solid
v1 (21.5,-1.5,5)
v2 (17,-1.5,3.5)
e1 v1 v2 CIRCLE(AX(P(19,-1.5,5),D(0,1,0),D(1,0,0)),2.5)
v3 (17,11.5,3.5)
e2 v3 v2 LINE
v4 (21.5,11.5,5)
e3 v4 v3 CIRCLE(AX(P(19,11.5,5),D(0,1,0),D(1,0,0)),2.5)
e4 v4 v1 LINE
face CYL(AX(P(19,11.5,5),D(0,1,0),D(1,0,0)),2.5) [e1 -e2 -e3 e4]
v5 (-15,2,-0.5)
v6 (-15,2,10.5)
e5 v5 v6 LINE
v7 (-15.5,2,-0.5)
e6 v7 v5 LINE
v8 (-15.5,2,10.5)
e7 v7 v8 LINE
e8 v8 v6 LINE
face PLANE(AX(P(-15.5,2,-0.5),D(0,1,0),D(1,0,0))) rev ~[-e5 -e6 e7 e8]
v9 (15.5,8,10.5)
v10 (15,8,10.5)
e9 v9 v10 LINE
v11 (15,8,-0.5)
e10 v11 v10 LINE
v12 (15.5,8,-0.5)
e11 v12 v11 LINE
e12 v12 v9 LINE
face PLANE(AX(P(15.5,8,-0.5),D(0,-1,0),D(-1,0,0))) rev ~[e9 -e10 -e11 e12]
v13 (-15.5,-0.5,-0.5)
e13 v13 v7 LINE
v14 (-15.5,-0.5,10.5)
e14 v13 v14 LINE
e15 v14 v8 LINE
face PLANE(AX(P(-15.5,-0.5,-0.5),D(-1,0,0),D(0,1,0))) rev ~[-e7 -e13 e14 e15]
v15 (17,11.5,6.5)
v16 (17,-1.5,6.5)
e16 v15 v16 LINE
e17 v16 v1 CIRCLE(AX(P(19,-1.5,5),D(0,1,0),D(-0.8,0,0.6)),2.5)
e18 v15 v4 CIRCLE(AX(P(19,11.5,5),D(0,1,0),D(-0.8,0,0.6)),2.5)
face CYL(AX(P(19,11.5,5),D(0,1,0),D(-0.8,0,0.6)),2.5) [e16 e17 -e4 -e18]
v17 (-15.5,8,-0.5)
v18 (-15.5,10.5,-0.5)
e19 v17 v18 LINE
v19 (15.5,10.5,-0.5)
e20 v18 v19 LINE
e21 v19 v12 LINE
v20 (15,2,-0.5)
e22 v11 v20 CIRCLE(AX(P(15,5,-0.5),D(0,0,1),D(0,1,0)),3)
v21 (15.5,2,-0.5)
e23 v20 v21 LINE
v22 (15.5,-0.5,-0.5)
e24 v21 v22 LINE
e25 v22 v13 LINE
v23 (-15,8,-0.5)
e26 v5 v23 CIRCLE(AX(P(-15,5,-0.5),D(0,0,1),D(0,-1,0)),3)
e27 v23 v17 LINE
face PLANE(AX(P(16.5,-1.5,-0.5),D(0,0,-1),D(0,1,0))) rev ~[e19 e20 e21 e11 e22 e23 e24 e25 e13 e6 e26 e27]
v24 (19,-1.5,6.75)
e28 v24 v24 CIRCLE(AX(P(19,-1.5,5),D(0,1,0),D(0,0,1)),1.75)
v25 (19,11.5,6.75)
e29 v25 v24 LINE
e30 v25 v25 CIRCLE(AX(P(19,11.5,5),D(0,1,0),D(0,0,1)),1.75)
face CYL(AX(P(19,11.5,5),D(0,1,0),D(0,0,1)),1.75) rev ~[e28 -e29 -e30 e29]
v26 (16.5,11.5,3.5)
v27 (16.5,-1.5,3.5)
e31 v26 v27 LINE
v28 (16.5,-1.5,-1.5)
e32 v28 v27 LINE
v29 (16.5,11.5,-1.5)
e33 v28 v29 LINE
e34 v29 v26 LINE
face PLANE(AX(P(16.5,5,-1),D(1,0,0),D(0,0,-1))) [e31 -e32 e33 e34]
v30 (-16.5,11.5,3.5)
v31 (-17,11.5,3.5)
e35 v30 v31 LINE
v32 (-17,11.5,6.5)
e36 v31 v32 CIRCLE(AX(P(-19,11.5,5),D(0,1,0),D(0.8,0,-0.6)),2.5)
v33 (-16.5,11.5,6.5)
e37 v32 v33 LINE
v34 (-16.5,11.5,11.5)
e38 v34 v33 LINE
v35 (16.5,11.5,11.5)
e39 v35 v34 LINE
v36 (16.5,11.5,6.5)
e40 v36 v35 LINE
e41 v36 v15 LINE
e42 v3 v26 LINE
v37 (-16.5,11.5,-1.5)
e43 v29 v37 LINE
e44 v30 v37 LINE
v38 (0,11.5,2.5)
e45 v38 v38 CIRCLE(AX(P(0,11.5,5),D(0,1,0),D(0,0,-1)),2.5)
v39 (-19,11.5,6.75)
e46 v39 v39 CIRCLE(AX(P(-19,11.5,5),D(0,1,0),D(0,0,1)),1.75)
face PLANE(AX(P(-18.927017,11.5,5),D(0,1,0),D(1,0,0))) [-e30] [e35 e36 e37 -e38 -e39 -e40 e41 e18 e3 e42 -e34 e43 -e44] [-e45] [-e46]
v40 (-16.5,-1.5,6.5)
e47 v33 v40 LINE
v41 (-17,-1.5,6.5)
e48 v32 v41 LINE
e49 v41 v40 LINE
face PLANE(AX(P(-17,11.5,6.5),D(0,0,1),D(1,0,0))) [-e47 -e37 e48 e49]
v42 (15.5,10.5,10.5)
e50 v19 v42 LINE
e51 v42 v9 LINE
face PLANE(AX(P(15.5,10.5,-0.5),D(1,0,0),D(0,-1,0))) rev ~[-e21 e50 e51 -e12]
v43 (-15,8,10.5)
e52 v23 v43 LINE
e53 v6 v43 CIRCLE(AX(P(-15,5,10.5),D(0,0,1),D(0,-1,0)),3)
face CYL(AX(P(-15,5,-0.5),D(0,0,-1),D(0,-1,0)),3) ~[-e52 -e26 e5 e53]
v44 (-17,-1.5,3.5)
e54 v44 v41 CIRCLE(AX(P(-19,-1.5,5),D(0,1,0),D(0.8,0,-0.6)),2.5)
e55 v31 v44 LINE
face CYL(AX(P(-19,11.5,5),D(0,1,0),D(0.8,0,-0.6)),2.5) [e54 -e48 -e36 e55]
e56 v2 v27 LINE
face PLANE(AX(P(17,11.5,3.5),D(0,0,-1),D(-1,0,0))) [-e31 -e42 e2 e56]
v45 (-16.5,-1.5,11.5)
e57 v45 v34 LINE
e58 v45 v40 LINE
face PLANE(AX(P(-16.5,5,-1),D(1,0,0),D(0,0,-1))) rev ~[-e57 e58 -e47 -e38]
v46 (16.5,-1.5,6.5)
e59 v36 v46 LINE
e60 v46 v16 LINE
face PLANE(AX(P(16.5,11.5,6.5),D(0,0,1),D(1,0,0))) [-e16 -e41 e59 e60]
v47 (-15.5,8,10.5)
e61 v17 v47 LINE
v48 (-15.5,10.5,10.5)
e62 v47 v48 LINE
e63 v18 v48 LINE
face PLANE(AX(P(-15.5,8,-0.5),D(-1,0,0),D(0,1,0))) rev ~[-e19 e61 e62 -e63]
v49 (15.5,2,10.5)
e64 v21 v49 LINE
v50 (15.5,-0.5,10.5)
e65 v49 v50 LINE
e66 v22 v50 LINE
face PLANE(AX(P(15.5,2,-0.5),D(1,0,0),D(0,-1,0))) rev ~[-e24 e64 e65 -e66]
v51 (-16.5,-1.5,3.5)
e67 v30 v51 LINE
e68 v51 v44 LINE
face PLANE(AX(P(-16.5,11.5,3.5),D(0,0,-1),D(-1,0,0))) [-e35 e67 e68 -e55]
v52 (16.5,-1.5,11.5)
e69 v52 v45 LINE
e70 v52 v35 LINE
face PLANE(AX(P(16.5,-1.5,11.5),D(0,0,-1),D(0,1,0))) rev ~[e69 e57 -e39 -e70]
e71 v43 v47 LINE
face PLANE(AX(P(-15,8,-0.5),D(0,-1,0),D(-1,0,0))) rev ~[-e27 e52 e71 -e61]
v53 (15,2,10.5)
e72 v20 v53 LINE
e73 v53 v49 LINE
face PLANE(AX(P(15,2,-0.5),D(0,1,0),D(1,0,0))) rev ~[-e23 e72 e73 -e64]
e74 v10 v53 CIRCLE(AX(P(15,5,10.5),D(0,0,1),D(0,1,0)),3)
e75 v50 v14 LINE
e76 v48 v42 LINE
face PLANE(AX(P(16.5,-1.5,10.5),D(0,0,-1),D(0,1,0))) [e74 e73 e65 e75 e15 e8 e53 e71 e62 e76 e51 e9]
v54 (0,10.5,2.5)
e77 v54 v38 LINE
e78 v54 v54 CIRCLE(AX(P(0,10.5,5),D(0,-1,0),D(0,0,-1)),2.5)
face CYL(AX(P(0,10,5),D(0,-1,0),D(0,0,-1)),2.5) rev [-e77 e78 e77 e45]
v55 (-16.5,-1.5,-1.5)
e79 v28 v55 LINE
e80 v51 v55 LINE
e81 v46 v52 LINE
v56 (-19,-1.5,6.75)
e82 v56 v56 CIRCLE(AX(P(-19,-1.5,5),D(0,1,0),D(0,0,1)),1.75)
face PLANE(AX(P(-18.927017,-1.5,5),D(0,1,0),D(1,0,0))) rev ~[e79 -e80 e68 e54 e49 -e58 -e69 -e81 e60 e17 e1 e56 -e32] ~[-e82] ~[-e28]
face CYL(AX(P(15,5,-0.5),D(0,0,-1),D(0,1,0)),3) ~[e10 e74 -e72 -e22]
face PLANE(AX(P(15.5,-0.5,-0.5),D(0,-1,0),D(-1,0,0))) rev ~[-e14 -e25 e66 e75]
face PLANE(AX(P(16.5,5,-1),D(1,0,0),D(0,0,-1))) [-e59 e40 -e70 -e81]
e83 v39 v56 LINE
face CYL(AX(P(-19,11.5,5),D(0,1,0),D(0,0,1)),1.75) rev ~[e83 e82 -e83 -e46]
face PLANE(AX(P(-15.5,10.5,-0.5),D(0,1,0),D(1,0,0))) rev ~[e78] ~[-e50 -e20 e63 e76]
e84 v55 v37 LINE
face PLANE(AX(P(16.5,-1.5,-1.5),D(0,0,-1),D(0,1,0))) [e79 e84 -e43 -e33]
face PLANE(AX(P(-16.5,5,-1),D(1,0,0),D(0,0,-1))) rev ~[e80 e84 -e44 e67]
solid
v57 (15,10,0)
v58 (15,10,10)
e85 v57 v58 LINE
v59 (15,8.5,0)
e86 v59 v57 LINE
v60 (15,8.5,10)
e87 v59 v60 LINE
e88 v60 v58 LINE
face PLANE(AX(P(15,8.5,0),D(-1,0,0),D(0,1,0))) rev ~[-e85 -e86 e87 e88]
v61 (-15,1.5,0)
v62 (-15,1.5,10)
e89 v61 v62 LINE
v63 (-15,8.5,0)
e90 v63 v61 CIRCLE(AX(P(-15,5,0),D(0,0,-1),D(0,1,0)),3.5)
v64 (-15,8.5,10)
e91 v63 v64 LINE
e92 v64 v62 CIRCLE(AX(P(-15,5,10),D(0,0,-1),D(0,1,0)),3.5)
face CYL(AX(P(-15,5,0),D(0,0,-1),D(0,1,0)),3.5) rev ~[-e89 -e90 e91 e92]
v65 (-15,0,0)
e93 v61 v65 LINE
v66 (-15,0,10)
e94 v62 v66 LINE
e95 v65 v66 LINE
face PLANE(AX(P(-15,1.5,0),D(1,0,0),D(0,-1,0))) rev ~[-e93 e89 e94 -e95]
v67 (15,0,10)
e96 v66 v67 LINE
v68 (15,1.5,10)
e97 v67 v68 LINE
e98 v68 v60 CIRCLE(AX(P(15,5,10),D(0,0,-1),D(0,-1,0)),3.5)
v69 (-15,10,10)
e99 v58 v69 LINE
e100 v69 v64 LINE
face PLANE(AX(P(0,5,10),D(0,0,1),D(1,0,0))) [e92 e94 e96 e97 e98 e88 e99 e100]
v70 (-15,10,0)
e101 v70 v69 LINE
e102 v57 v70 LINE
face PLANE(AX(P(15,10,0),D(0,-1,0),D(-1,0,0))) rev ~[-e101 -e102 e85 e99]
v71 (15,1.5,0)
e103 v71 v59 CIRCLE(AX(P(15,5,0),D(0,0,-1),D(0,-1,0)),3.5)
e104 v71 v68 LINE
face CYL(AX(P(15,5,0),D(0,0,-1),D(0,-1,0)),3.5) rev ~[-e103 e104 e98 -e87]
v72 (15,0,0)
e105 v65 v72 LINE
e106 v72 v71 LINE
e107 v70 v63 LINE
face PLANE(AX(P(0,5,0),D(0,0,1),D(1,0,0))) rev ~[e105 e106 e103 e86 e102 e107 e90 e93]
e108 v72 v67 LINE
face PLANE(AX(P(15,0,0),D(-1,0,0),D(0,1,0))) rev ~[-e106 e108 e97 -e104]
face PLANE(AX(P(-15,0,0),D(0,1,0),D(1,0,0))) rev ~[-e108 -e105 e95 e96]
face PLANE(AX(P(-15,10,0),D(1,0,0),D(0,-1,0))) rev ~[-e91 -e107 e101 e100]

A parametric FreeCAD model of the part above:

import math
import FreeCAD as App
import Part
import Sketcher

V = App.Vector


def add_polygon(sketch, points):
    """Adds a closed chain of lines whose ends are joined by coincident constraints."""
    first, n = sketch.GeometryCount, len(points)
    for a, b in zip(points, points[1:] + points[:1]):
        sketch.addGeometry(Part.LineSegment(App.Vector(*a, 0), App.Vector(*b, 0)), False)
    for i in range(n):
        sketch.addConstraint(Sketcher.Constraint("Coincident", first + i, 2, first + (i + 1) % n, 1))

doc = App.newDocument("Part")
params = doc.addObject("Spreadsheet::Sheet", "Params")
for row, (alias, value) in enumerate([
    ("sketch1_radius", "3.5 mm"),
    ("sketch1_width", "30 mm"),
    ("sketch1_height", "1.5 mm"),
    ("pad1_length", "10 mm"),
    ("sketch2_radius", "3 mm"),
    ("sketch2_width", "33 mm"),
    ("sketch2_width2", "31 mm"),
    ("sketch2_height", "13 mm"),
    ("sketch2_width3", "0.5 mm"),
    ("pad2_length", "11 mm"),
    ("sketch3_width", "13 mm"),
    ("sketch3_height", "1 mm"),
    ("pad3_length", "33 mm"),
    ("sketch4_diameter", "3.5 mm"),
    ("sketch4_radius", "2.5 mm"),
    ("sketch4_height", "3 mm"),
    ("sketch4_width", "0.5 mm"),
    ("pad4_length", "13 mm"),
    ("sketch5_diameter", "5 mm"),
    ("pocket1_length", "1.5 mm"),
], start=1):
    params.set(f"A{row}", alias)
    params.set(f"B{row}", "=" + value)
    params.setAlias(f"B{row}", alias)

body = doc.addObject("PartDesign::Body", "Body")

# Sketch on XY plane
sketch1 = doc.addObject("Sketcher::SketchObject", "Sketch")
body.addObject(sketch1)
sketch1.AttachmentSupport = (doc.XY_Plane, [""])
sketch1.MapMode = "FlatFace"
sketch1.addGeometry(Part.LineSegment(V(-15, 0, 0), V(15, 0, 0)), False)
sketch1.addGeometry(Part.LineSegment(V(15, 0, 0), V(15, 1.5, 0)), False)
sketch1.addGeometry(Part.ArcOfCircle(Part.Circle(V(15, 5, 0), V(0, 0, 1), 3.5), math.radians(90), math.radians(270)), False)
sketch1.addGeometry(Part.LineSegment(V(15, 8.5, 0), V(15, 10, 0)), False)
sketch1.addGeometry(Part.LineSegment(V(15, 10, 0), V(-15, 10, 0)), False)
sketch1.addGeometry(Part.LineSegment(V(-15, 10, 0), V(-15, 8.5, 0)), False)
sketch1.addGeometry(Part.ArcOfCircle(Part.Circle(V(-15, 5, 0), V(0, 0, 1), 3.5), math.radians(-90), math.radians(90)), False)
sketch1.addGeometry(Part.LineSegment(V(-15, 1.5, 0), V(-15, 0, 0)), False)
sketch1.addConstraint(Sketcher.Constraint("Coincident", 0, 2, 1, 1))
sketch1.addConstraint(Sketcher.Constraint("Coincident", 1, 2, 2, 2))
sketch1.addConstraint(Sketcher.Constraint("Coincident", 2, 1, 3, 1))
sketch1.addConstraint(Sketcher.Constraint("Coincident", 3, 2, 4, 1))
sketch1.addConstraint(Sketcher.Constraint("Coincident", 4, 2, 5, 1))
sketch1.addConstraint(Sketcher.Constraint("Coincident", 5, 2, 6, 2))
sketch1.addConstraint(Sketcher.Constraint("Coincident", 6, 1, 7, 1))
sketch1.addConstraint(Sketcher.Constraint("Coincident", 7, 2, 0, 1))
sketch1.addConstraint(Sketcher.Constraint("Horizontal", 0))
sketch1.addConstraint(Sketcher.Constraint("Vertical", 1))
sketch1.addConstraint(Sketcher.Constraint("Vertical", 3))
sketch1.addConstraint(Sketcher.Constraint("Horizontal", 4))
sketch1.addConstraint(Sketcher.Constraint("Vertical", 5))
sketch1.addConstraint(Sketcher.Constraint("Vertical", 7))
sketch1.addConstraint(Sketcher.Constraint("Equal", 2, 6))
sketch1.addConstraint(Sketcher.Constraint("Symmetric", 0, 2, 7, 2, -1, 1))
sketch1.addConstraint(Sketcher.Constraint("Symmetric", 2, 3, 6, 3, -2))
sketch1.addConstraint(Sketcher.Constraint("Vertical", 2, 3, 0, 2))
sketch1.addConstraint(Sketcher.Constraint("Vertical", 1, 2, 2, 1))
sketch1.addConstraint(Sketcher.Constraint("Vertical", 6, 3, 4, 2))
sketch1.addConstraint(Sketcher.Constraint("Equal", 1, 3))
sketch1.addConstraint(Sketcher.Constraint("Radius", 2, 3.5))
sketch1.addConstraint(Sketcher.Constraint("DistanceX", 0, 1, 0, 2, 30.0))
sketch1.addConstraint(Sketcher.Constraint("DistanceY", 1, 1, 1, 2, 1.5))
sketch1.setExpression("Constraints[21]", "Params.sketch1_radius")
sketch1.setExpression("Constraints[22]", "Params.sketch1_width")
sketch1.setExpression("Constraints[23]", "Params.sketch1_height")
pad1 = doc.addObject("PartDesign::Pad", "Pad")
body.addObject(pad1)
pad1.Profile = sketch1
pad1.setExpression("Length", "Params.pad1_length")
body2 = doc.addObject("PartDesign::Body", "Body001")

# Sketch on XY plane
sketch2 = doc.addObject("Sketcher::SketchObject", "Sketch001")
body2.addObject(sketch2)
sketch2.AttachmentSupport = (doc.getObject("XY_Plane001"), [""])
sketch2.MapMode = "FlatFace"
sketch2.AttachmentOffset = App.Placement(V(0, 0, -0.5), App.Rotation())
add_polygon(sketch2, [(-16.5, -1.5), (-16.5, 11.5), (16.5, 11.5), (16.5, -1.5)])  # lines 0-3
sketch2.addGeometry(Part.LineSegment(V(-15, 2, 0), V(-15.5, 2, 0)), False)  # 4
sketch2.addGeometry(Part.LineSegment(V(-15.5, 2, 0), V(-15.5, -0.5, 0)), False)  # 5
sketch2.addGeometry(Part.LineSegment(V(-15.5, -0.5, 0), V(15.5, -0.5, 0)), False)  # 6
sketch2.addGeometry(Part.LineSegment(V(15.5, -0.5, 0), V(15.5, 2, 0)), False)  # 7
sketch2.addGeometry(Part.LineSegment(V(15.5, 2, 0), V(15, 2, 0)), False)  # 8
sketch2.addGeometry(Part.ArcOfCircle(Part.Circle(V(15, 5, 0), V(0, 0, 1), 3), math.radians(90), math.radians(270)), False)  # 9
sketch2.addGeometry(Part.LineSegment(V(15, 8, 0), V(15.5, 8, 0)), False)  # 10
sketch2.addGeometry(Part.LineSegment(V(15.5, 8, 0), V(15.5, 10.5, 0)), False)  # 11
sketch2.addGeometry(Part.LineSegment(V(15.5, 10.5, 0), V(-15.5, 10.5, 0)), False)  # 12
sketch2.addGeometry(Part.LineSegment(V(-15.5, 10.5, 0), V(-15.5, 8, 0)), False)  # 13
sketch2.addGeometry(Part.LineSegment(V(-15.5, 8, 0), V(-15, 8, 0)), False)  # 14
sketch2.addGeometry(Part.ArcOfCircle(Part.Circle(V(-15, 5, 0), V(0, 0, 1), 3), math.radians(-90), math.radians(90)), False)  # 15
sketch2.addConstraint(Sketcher.Constraint("Coincident", 4, 2, 5, 1))
sketch2.addConstraint(Sketcher.Constraint("Coincident", 5, 2, 6, 1))
sketch2.addConstraint(Sketcher.Constraint("Coincident", 6, 2, 7, 1))
sketch2.addConstraint(Sketcher.Constraint("Coincident", 7, 2, 8, 1))
sketch2.addConstraint(Sketcher.Constraint("Tangent", 8, 2, 9, 2))
sketch2.addConstraint(Sketcher.Constraint("Tangent", 9, 1, 10, 1))
sketch2.addConstraint(Sketcher.Constraint("Coincident", 10, 2, 11, 1))
sketch2.addConstraint(Sketcher.Constraint("Coincident", 11, 2, 12, 1))
sketch2.addConstraint(Sketcher.Constraint("Coincident", 12, 2, 13, 1))
sketch2.addConstraint(Sketcher.Constraint("Coincident", 13, 2, 14, 1))
sketch2.addConstraint(Sketcher.Constraint("Tangent", 14, 2, 15, 2))
sketch2.addConstraint(Sketcher.Constraint("Tangent", 15, 1, 4, 1))
sketch2.addConstraint(Sketcher.Constraint("Vertical", 0))
sketch2.addConstraint(Sketcher.Constraint("Horizontal", 1))
sketch2.addConstraint(Sketcher.Constraint("Vertical", 2))
sketch2.addConstraint(Sketcher.Constraint("Horizontal", 3))
sketch2.addConstraint(Sketcher.Constraint("Horizontal", 4))
sketch2.addConstraint(Sketcher.Constraint("Vertical", 5))
sketch2.addConstraint(Sketcher.Constraint("Horizontal", 6))
sketch2.addConstraint(Sketcher.Constraint("Vertical", 7))
sketch2.addConstraint(Sketcher.Constraint("Horizontal", 8))
sketch2.addConstraint(Sketcher.Constraint("Horizontal", 10))
sketch2.addConstraint(Sketcher.Constraint("Vertical", 11))
sketch2.addConstraint(Sketcher.Constraint("Horizontal", 12))
sketch2.addConstraint(Sketcher.Constraint("Vertical", 13))
sketch2.addConstraint(Sketcher.Constraint("Horizontal", 14))
sketch2.addConstraint(Sketcher.Constraint("Equal", 9, 15))
sketch2.addConstraint(Sketcher.Constraint("Symmetric", 9, 3, 15, 3, -2))
sketch2.addConstraint(Sketcher.Constraint("Vertical", 7, 2, 10, 2))
sketch2.addConstraint(Sketcher.Constraint("Vertical", 5, 2, 12, 2))
sketch2.addConstraint(Sketcher.Constraint("Equal", 4, 8))
sketch2.addConstraint(Sketcher.Constraint("Equal", 7, 11))
sketch2.addConstraint(Sketcher.Constraint("Radius", 9, 3.0))
sketch2.addConstraint(Sketcher.Constraint("DistanceX", 1, 1, 1, 2, 33.0))
sketch2.addConstraint(Sketcher.Constraint("DistanceX", 6, 1, 6, 2, 31.0))
sketch2.addConstraint(Sketcher.Constraint("DistanceY", 0, 1, 0, 2, 13.0))
sketch2.addConstraint(Sketcher.Constraint("DistanceX", 4, 2, 4, 1, 0.5))
sketch2.addConstraint(Sketcher.Constraint("DistanceY", 5, 2, 5, 1, 2.5))
sketch2.addConstraint(Sketcher.Constraint("DistanceY", -1, 1, 9, 3, 5.0))
sketch2.addConstraint(Sketcher.Constraint("DistanceX", 3, 2, 4, 2, 1.0))
sketch2.addConstraint(Sketcher.Constraint("DistanceY", 3, 2, 5, 2, 1.0))
sketch2.setExpression("Constraints[36]", "Params.sketch2_radius")
sketch2.setExpression("Constraints[37]", "Params.sketch2_width")
sketch2.setExpression("Constraints[38]", "Params.sketch2_width2")
sketch2.setExpression("Constraints[39]", "Params.sketch2_height")
sketch2.setExpression("Constraints[40]", "Params.sketch2_width3")
pad2 = doc.addObject("PartDesign::Pad", "Pad001")
body2.addObject(pad2)
pad2.Profile = sketch2
pad2.setExpression("Length", "Params.pad2_length")

# Sketch on YZ plane
sketch3 = doc.addObject("Sketcher::SketchObject", "Sketch002")
body2.addObject(sketch3)
sketch3.AttachmentSupport = (doc.getObject("YZ_Plane001"), [""])
sketch3.MapMode = "FlatFace"
sketch3.AttachmentOffset = App.Placement(V(0, 0, 16.5), App.Rotation())
add_polygon(sketch3, [(11.5, -0.5), (-1.5, -0.5), (-1.5, -1.5), (11.5, -1.5)])  # lines 0-3
add_polygon(sketch3, [(11.5, 11.5), (-1.5, 11.5), (-1.5, 10.5), (11.5, 10.5)])  # lines 4-7
sketch3.addConstraint(Sketcher.Constraint("Horizontal", 0))
sketch3.addConstraint(Sketcher.Constraint("Vertical", 1))
sketch3.addConstraint(Sketcher.Constraint("Horizontal", 2))
sketch3.addConstraint(Sketcher.Constraint("Vertical", 3))
sketch3.addConstraint(Sketcher.Constraint("Horizontal", 4))
sketch3.addConstraint(Sketcher.Constraint("Vertical", 5))
sketch3.addConstraint(Sketcher.Constraint("Horizontal", 6))
sketch3.addConstraint(Sketcher.Constraint("Vertical", 7))
sketch3.addConstraint(Sketcher.Constraint("Vertical", 1, 2, 4, 2))
sketch3.addConstraint(Sketcher.Constraint("Vertical", 3, 2, 6, 2))
sketch3.addConstraint(Sketcher.Constraint("Equal", 3, 5))
sketch3.addConstraint(Sketcher.Constraint("DistanceX", 0, 2, 0, 1, 13.0))
sketch3.addConstraint(Sketcher.Constraint("DistanceY", 1, 2, 1, 1, 1.0))
sketch3.addConstraint(Sketcher.Constraint("DistanceY", 0, 2, 4, 2, 12.0))
sketch3.addConstraint(Sketcher.Constraint("DistanceX", 0, 2, -1, 1, 1.5))
sketch3.addConstraint(Sketcher.Constraint("DistanceY", 0, 2, -1, 1, 0.5))
sketch3.setExpression("Constraints[19]", "Params.sketch3_width")
sketch3.setExpression("Constraints[20]", "Params.sketch3_height")
pad3 = doc.addObject("PartDesign::Pad", "Pad002")
body2.addObject(pad3)
pad3.Profile = sketch3
pad3.setExpression("Length", "Params.pad3_length")
pad3.Reversed = True

# Sketch on XZ plane
sketch4 = doc.addObject("Sketcher::SketchObject", "Sketch003")
body2.addObject(sketch4)
sketch4.AttachmentSupport = (doc.getObject("XZ_Plane001"), [""])
sketch4.MapMode = "FlatFace"
sketch4.AttachmentOffset = App.Placement(V(0, 0, -11.5), App.Rotation())
sketch4.addGeometry(Part.ArcOfCircle(Part.Circle(V(-19, 5, 0), V(0, 0, 1), 2.5), math.radians(37), math.radians(323)), False)
sketch4.addGeometry(Part.LineSegment(V(-17, 6.5, 0), V(-16.5, 6.5, 0)), False)
sketch4.addGeometry(Part.LineSegment(V(-16.5, 6.5, 0), V(-16.5, 3.5, 0)), False)
sketch4.addGeometry(Part.LineSegment(V(-16.5, 3.5, 0), V(-17, 3.5, 0)), False)
sketch4.addGeometry(Part.Circle(V(-19, 5, 0), V(0, 0, 1), 1.8), False)
sketch4.addGeometry(Part.LineSegment(V(16.5, 6.5, 0), V(17, 6.5, 0)), False)
sketch4.addGeometry(Part.ArcOfCircle(Part.Circle(V(19, 5, 0), V(0, 0, 1), 2.5), math.radians(0), math.radians(143)), False)
sketch4.addGeometry(Part.ArcOfCircle(Part.Circle(V(19, 5, 0), V(0, 0, 1), 2.5), math.radians(-143), math.radians(0)), False)
sketch4.addGeometry(Part.LineSegment(V(17, 3.5, 0), V(16.5, 3.5, 0)), False)
sketch4.addGeometry(Part.LineSegment(V(16.5, 3.5, 0), V(16.5, 6.5, 0)), False)
sketch4.addGeometry(Part.Circle(V(19, 5, 0), V(0, 0, 1), 1.8), False)
sketch4.addConstraint(Sketcher.Constraint("Coincident", 0, 1, 1, 1))
sketch4.addConstraint(Sketcher.Constraint("Coincident", 1, 2, 2, 1))
sketch4.addConstraint(Sketcher.Constraint("Coincident", 2, 2, 3, 1))
sketch4.addConstraint(Sketcher.Constraint("Coincident", 3, 2, 0, 2))
sketch4.addConstraint(Sketcher.Constraint("Coincident", 5, 2, 6, 2))
sketch4.addConstraint(Sketcher.Constraint("Tangent", 6, 1, 7, 2))
sketch4.addConstraint(Sketcher.Constraint("Coincident", 7, 1, 8, 1))
sketch4.addConstraint(Sketcher.Constraint("Coincident", 8, 2, 9, 1))
sketch4.addConstraint(Sketcher.Constraint("Coincident", 9, 2, 5, 1))
sketch4.addConstraint(Sketcher.Constraint("Horizontal", 1))
sketch4.addConstraint(Sketcher.Constraint("Vertical", 2))
sketch4.addConstraint(Sketcher.Constraint("Horizontal", 3))
sketch4.addConstraint(Sketcher.Constraint("Horizontal", 5))
sketch4.addConstraint(Sketcher.Constraint("Horizontal", 8))
sketch4.addConstraint(Sketcher.Constraint("Vertical", 9))
sketch4.addConstraint(Sketcher.Constraint("Coincident", 4, 3, 0, 3))
sketch4.addConstraint(Sketcher.Constraint("Coincident", 10, 3, 6, 3))
sketch4.addConstraint(Sketcher.Constraint("Equal", 0, 6))
sketch4.addConstraint(Sketcher.Constraint("Equal", 6, 7))
sketch4.addConstraint(Sketcher.Constraint("Equal", 4, 10))
sketch4.addConstraint(Sketcher.Constraint("Symmetric", 0, 3, 6, 3, -2))
sketch4.addConstraint(Sketcher.Constraint("Symmetric", 2, 2, 8, 2, -2))
sketch4.addConstraint(Sketcher.Constraint("Horizontal", 1, 2, 5, 2))
sketch4.addConstraint(Sketcher.Constraint("Horizontal", 10, 3, 6, 1))
sketch4.addConstraint(Sketcher.Constraint("Vertical", 0, 1, 3, 2))
sketch4.addConstraint(Sketcher.Constraint("Diameter", 4, 3.5))
sketch4.addConstraint(Sketcher.Constraint("Radius", 0, 2.5))
sketch4.addConstraint(Sketcher.Constraint("DistanceY", 2, 2, 2, 1, 3.0))
sketch4.addConstraint(Sketcher.Constraint("DistanceX", 1, 1, 1, 2, 0.5))
sketch4.addConstraint(Sketcher.Constraint("DistanceX", 0, 3, -1, 1, 19.0))
sketch4.addConstraint(Sketcher.Constraint("DistanceY", -1, 1, 0, 3, 5.0))
sketch4.setExpression("Constraints[25]", "Params.sketch4_diameter")
sketch4.setExpression("Constraints[26]", "Params.sketch4_radius")
sketch4.setExpression("Constraints[27]", "Params.sketch4_height")
sketch4.setExpression("Constraints[28]", "Params.sketch4_width")
pad4 = doc.addObject("PartDesign::Pad", "Pad003")
body2.addObject(pad4)
pad4.Profile = sketch4
pad4.setExpression("Length", "Params.pad4_length")

# Sketch on XZ plane
sketch5 = doc.addObject("Sketcher::SketchObject", "Sketch004")
body2.addObject(sketch5)
sketch5.AttachmentSupport = (doc.getObject("XZ_Plane001"), [""])
sketch5.MapMode = "FlatFace"
sketch5.AttachmentOffset = App.Placement(V(0, 0, -10), App.Rotation())
sketch5.addGeometry(Part.Circle(V(0, 5, 0), V(0, 0, 1), 2.5), False)
sketch5.addConstraint(Sketcher.Constraint("PointOnObject", 0, 3, -2))
sketch5.addConstraint(Sketcher.Constraint("Diameter", 0, 5.0))
sketch5.addConstraint(Sketcher.Constraint("DistanceY", -1, 1, 0, 3, 5.0))
sketch5.setExpression("Constraints[1]", "Params.sketch5_diameter")
pocket1 = doc.addObject("PartDesign::Pocket", "Pocket")
body2.addObject(pocket1)
pocket1.Profile = sketch5
pocket1.setExpression("Length", "Params.pocket1_length")

doc.recompute()
